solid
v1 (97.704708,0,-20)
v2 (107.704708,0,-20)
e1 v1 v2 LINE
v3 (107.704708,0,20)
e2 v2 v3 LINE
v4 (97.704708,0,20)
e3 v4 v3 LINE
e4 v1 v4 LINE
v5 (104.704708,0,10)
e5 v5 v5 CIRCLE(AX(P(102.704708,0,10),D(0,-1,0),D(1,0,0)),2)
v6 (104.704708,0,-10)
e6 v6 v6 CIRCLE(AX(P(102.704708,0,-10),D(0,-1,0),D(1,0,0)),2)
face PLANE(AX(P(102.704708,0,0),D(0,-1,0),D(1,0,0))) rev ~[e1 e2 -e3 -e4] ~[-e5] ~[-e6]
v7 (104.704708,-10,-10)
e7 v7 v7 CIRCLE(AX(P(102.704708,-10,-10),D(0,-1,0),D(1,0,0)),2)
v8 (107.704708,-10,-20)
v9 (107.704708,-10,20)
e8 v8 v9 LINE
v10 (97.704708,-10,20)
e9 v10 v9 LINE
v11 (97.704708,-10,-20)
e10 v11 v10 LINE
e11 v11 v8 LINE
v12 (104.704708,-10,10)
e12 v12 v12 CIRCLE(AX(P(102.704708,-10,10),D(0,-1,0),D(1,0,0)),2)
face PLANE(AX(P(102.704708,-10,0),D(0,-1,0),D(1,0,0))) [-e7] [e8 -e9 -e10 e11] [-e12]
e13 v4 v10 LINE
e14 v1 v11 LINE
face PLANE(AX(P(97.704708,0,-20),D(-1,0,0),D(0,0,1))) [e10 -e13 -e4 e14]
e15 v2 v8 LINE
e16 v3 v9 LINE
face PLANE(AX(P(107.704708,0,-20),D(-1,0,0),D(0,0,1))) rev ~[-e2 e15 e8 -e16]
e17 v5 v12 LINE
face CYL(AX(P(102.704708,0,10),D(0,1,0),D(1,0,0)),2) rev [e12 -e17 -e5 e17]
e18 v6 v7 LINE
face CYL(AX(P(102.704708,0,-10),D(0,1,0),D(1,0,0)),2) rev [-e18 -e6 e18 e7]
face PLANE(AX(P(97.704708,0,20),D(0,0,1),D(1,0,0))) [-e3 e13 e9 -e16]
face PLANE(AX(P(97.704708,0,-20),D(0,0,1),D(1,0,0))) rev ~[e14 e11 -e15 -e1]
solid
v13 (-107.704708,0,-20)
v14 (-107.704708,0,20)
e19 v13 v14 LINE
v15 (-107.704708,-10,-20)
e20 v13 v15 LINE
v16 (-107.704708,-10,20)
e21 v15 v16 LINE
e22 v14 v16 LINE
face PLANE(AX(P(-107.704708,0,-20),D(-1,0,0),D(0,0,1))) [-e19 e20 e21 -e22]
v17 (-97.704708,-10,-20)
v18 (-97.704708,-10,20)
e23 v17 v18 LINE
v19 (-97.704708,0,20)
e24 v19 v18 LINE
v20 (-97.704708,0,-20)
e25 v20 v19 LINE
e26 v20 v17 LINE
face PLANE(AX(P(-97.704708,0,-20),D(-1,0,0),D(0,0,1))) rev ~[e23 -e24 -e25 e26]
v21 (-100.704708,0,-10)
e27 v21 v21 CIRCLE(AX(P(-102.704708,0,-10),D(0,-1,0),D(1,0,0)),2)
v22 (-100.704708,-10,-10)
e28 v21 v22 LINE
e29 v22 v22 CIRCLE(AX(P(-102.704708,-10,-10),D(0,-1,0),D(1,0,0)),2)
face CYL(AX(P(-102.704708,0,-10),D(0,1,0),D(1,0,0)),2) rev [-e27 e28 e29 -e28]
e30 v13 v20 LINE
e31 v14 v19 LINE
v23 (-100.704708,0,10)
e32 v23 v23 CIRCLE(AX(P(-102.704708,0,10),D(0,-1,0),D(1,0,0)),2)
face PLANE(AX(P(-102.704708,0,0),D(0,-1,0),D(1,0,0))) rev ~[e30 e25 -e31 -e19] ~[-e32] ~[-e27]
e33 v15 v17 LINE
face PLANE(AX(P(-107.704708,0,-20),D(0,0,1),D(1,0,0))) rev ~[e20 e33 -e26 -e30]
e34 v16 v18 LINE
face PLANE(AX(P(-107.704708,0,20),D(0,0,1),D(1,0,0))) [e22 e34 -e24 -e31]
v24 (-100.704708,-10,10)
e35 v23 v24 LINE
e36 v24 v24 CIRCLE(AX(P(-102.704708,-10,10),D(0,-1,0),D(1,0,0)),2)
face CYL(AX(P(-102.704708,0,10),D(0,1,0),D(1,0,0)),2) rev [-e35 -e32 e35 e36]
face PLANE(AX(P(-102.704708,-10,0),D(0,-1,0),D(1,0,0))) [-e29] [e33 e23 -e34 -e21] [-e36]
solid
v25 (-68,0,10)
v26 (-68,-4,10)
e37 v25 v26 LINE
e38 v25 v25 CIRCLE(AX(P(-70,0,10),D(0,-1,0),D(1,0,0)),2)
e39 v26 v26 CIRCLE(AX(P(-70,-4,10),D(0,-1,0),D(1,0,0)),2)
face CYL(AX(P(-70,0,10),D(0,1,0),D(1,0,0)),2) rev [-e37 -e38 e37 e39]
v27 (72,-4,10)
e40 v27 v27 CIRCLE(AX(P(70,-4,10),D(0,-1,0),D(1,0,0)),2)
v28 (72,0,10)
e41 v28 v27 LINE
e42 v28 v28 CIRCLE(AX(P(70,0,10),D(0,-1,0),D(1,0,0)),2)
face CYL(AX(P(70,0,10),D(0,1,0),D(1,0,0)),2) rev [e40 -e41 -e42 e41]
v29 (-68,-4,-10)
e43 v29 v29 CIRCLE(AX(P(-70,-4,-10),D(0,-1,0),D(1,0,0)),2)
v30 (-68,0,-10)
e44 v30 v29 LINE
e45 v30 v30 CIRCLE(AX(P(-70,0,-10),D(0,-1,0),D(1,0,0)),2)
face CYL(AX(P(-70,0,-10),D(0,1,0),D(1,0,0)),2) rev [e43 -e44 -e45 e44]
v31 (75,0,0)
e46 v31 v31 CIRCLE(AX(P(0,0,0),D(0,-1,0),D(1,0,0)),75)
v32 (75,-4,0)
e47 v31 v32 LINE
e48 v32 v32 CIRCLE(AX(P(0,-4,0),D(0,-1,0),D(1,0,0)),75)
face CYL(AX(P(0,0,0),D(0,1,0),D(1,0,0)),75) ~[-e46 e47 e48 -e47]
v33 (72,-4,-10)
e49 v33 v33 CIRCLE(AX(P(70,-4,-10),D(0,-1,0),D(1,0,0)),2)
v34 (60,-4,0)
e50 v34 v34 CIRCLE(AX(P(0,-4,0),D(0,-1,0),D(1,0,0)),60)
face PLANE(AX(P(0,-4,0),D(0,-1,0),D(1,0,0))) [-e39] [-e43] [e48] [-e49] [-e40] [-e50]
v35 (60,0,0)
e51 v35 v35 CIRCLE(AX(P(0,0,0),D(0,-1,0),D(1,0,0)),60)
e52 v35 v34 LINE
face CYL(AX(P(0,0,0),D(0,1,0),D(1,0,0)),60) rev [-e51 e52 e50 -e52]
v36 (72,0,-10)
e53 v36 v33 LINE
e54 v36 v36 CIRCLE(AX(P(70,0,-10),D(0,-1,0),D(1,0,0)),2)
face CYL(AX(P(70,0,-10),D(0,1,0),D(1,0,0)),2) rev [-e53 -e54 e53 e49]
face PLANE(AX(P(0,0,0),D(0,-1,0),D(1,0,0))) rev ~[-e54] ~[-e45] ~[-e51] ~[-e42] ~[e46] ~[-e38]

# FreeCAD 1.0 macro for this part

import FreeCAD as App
import Part
import Sketcher
from FreeCAD import Vector


def add_polygon(sketch, points):
    """Adds a closed chain of lines whose ends are joined by coincident constraints."""
    first, n = sketch.GeometryCount, len(points)
    for a, b in zip(points, points[1:] + points[:1]):
        sketch.addGeometry(Part.LineSegment(App.Vector(*a, 0), App.Vector(*b, 0)), False)
    for i in range(n):
        sketch.addConstraint(Sketcher.Constraint("Coincident", first + i, 2, first + (i + 1) % n, 1))

doc = App.newDocument("Part")
body = doc.addObject("PartDesign::Body", "Body")

# Sketch on XZ plane
sketch1 = body.newObject("Sketcher::SketchObject", "Sketch")
sketch1.AttachmentSupport = (doc.getObject("XZ_Plane"), [""])
sketch1.MapMode = "FlatFace"
sketch1.addGeometry(Part.Circle(Vector(0, 0, 0), Vector(0, 0, 1), 75), False)
sketch1.addGeometry(Part.Circle(Vector(-70, -10, 0), Vector(0, 0, 1), 2), False)
sketch1.addGeometry(Part.Circle(Vector(70, -10, 0), Vector(0, 0, 1), 2), False)
sketch1.addGeometry(Part.Circle(Vector(-70, 10, 0), Vector(0, 0, 1), 2), False)
sketch1.addGeometry(Part.Circle(Vector(0, 0, 0), Vector(0, 0, 1), 60), False)
sketch1.addGeometry(Part.Circle(Vector(70, 10, 0), Vector(0, 0, 1), 2), False)
sketch1.addConstraint(Sketcher.Constraint("Coincident", 0, 3, -1, 1))
sketch1.addConstraint(Sketcher.Constraint("Coincident", 4, 3, -1, 1))
sketch1.addConstraint(Sketcher.Constraint("Equal", 1, 2))
sketch1.addConstraint(Sketcher.Constraint("Equal", 2, 3))
sketch1.addConstraint(Sketcher.Constraint("Equal", 3, 5))
sketch1.addConstraint(Sketcher.Constraint("Symmetric", 2, 3, 3, 3, -1, 1))
sketch1.addConstraint(Sketcher.Constraint("Symmetric", 1, 3, 5, 3, -1, 1))
sketch1.addConstraint(Sketcher.Constraint("Symmetric", 1, 3, 2, 3, -2))
sketch1.addConstraint(Sketcher.Constraint("Diameter", 0, 150.0))
sketch1.addConstraint(Sketcher.Constraint("Diameter", 1, 4.0))
sketch1.addConstraint(Sketcher.Constraint("Diameter", 4, 120.0))
sketch1.addConstraint(Sketcher.Constraint("DistanceX", 1, 3, -1, 1, 70.0))
sketch1.addConstraint(Sketcher.Constraint("DistanceY", 1, 3, -1, 1, 10.0))
pad1 = body.newObject("PartDesign::Pad", "Pad")
pad1.Profile = sketch1
pad1.Length = 4
body2 = doc.addObject("PartDesign::Body", "Body001")
body2.AllowCompound = True

# Sketch on XZ plane
sketch2 = body2.newObject("Sketcher::SketchObject", "Sketch001")
sketch2.AttachmentSupport = (doc.getObject("XZ_Plane001"), [""])
sketch2.MapMode = "FlatFace"
add_polygon(sketch2, [(-107.7, 20), (-107.7, -20), (-97.7, -20), (-97.7, 20)])  # lines 0-3
sketch2.addGeometry(Part.Circle(Vector(-102.7, -10, 0), Vector(0, 0, 1), 2), False)  # 4
sketch2.addGeometry(Part.Circle(Vector(-102.7, 10, 0), Vector(0, 0, 1), 2), False)  # 5
add_polygon(sketch2, [(97.7, 20), (97.7, -20), (107.7, -20), (107.7, 20)])  # lines 6-9
sketch2.addGeometry(Part.Circle(Vector(102.7, -10, 0), Vector(0, 0, 1), 2), False)  # 10
sketch2.addGeometry(Part.Circle(Vector(102.7, 10, 0), Vector(0, 0, 1), 2), False)  # 11
sketch2.addConstraint(Sketcher.Constraint("Vertical", 0))
sketch2.addConstraint(Sketcher.Constraint("Horizontal", 1))
sketch2.addConstraint(Sketcher.Constraint("Vertical", 2))
sketch2.addConstraint(Sketcher.Constraint("Horizontal", 3))
sketch2.addConstraint(Sketcher.Constraint("Vertical", 6))
sketch2.addConstraint(Sketcher.Constraint("Horizontal", 7))
sketch2.addConstraint(Sketcher.Constraint("Vertical", 8))
sketch2.addConstraint(Sketcher.Constraint("Horizontal", 9))
sketch2.addConstraint(Sketcher.Constraint("Equal", 4, 5))
sketch2.addConstraint(Sketcher.Constraint("Equal", 5, 10))
sketch2.addConstraint(Sketcher.Constraint("Equal", 10, 11))
sketch2.addConstraint(Sketcher.Constraint("Symmetric", 5, 3, 10, 3, -1, 1))
sketch2.addConstraint(Sketcher.Constraint("Symmetric", 4, 3, 11, 3, -1, 1))
sketch2.addConstraint(Sketcher.Constraint("Symmetric", 2, 2, 6, 2, -1, 1))
sketch2.addConstraint(Sketcher.Constraint("Symmetric", 0, 2, 8, 2, -1, 1))
sketch2.addConstraint(Sketcher.Constraint("Symmetric", 4, 3, 10, 3, -2))
sketch2.addConstraint(Sketcher.Constraint("Horizontal", 1, 2, 6, 2))
sketch2.addConstraint(Sketcher.Constraint("Diameter", 4, 4.0))
sketch2.addConstraint(Sketcher.Constraint("DistanceX", 1, 1, 1, 2, 10.0))
sketch2.addConstraint(Sketcher.Constraint("DistanceY", 0, 2, 0, 1, 40.0))
sketch2.addConstraint(Sketcher.Constraint("DistanceY", 4, 3, -1, 1, 10.0))
sketch2.addConstraint(Sketcher.Constraint("DistanceX", 0, 2, 4, 3, 5.0))
sketch2.addConstraint(Sketcher.Constraint("DistanceX", 4, 3, -1, 1, 102.704708))
pad2 = body2.newObject("PartDesign::Pad", "Pad001")
pad2.Profile = sketch2
pad2.Length = 10

doc.recompute()
